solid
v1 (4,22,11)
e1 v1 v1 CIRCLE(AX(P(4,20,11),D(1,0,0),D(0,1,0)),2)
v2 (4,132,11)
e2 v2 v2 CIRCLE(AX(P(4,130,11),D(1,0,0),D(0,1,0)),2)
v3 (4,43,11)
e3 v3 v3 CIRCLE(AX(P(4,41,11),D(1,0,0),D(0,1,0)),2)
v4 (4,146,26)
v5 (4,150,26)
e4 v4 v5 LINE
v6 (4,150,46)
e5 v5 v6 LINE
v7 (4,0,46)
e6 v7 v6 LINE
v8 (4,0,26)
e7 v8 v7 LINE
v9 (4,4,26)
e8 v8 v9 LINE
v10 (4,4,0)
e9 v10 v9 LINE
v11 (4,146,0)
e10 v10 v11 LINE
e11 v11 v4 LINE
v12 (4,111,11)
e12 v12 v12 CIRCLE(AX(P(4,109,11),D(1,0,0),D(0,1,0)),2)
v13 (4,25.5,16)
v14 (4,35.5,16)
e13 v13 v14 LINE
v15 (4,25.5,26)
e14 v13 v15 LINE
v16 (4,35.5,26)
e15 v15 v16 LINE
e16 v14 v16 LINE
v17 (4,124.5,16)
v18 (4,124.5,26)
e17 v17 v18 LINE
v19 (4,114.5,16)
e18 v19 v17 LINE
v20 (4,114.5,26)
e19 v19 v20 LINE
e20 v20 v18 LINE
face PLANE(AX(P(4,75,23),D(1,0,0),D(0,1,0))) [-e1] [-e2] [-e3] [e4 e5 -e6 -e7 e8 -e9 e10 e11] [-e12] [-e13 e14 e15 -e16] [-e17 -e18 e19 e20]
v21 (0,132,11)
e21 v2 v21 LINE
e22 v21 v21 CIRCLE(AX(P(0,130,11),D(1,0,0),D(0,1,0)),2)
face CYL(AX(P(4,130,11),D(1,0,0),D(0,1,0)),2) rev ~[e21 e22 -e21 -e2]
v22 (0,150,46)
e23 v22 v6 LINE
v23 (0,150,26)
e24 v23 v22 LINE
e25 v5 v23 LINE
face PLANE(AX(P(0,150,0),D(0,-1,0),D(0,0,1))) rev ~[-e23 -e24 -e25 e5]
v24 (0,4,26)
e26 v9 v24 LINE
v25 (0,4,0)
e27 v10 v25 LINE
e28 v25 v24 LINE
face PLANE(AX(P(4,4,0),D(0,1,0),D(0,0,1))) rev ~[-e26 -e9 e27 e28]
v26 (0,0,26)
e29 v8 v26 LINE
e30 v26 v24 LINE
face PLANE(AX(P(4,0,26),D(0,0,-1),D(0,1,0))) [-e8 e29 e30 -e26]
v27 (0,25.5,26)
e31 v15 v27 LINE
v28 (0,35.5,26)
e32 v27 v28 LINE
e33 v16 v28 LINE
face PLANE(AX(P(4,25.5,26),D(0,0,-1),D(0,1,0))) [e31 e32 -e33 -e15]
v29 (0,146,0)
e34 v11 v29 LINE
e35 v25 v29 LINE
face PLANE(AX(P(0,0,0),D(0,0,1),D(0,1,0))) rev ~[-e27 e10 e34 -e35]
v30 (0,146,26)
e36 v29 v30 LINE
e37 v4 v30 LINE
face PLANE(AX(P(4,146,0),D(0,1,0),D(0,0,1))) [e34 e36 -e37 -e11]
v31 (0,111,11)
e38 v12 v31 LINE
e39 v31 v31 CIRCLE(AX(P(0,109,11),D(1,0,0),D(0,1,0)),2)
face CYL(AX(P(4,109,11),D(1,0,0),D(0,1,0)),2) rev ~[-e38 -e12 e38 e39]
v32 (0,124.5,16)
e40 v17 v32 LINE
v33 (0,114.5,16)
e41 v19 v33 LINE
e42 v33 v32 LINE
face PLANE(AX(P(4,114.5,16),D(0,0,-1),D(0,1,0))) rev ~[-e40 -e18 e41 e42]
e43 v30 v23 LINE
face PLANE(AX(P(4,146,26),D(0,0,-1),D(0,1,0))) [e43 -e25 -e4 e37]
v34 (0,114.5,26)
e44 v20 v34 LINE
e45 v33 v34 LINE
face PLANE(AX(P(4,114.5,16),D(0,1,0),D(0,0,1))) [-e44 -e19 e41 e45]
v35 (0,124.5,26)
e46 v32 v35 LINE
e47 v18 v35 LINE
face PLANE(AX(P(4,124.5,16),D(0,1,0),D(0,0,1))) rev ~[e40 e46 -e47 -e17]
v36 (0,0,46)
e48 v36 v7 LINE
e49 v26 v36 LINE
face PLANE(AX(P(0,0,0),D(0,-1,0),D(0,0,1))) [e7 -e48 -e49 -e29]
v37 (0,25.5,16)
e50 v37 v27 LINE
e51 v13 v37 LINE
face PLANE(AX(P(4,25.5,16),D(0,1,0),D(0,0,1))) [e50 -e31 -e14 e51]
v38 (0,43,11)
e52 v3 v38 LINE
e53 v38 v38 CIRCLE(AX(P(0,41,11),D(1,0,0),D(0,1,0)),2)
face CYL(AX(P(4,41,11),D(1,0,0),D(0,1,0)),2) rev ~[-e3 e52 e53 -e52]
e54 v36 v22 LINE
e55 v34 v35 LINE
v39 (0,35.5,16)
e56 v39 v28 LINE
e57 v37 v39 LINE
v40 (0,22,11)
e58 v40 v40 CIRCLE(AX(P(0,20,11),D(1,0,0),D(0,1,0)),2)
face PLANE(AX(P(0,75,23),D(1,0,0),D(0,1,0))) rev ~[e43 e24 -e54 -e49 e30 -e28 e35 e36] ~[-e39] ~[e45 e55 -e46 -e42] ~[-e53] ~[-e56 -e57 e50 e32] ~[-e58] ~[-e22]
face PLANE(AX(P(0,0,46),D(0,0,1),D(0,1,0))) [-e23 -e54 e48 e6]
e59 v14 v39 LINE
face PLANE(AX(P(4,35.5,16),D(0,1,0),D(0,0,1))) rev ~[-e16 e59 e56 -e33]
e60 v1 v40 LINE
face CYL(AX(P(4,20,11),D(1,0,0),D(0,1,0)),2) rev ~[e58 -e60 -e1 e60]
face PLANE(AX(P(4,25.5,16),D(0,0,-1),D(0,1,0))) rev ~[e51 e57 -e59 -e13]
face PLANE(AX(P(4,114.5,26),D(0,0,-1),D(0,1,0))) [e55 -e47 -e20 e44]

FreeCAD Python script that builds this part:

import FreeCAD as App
import Part
import Sketcher


def add_polygon(sketch, points):
    """Adds a closed chain of lines whose ends are joined by coincident constraints."""
    first, n = sketch.GeometryCount, len(points)
    for a, b in zip(points, points[1:] + points[:1]):
        sketch.addGeometry(Part.LineSegment(App.Vector(*a, 0), App.Vector(*b, 0)), False)
    for i in range(n):
        sketch.addConstraint(Sketcher.Constraint("Coincident", first + i, 2, first + (i + 1) % n, 1))

doc = App.newDocument("Part")
body = doc.addObject("PartDesign::Body", "Body")

sketch1 = body.newObject("Sketcher::SketchObject", "Sketch")
sketch1.AttachmentSupport = (doc.getObject("YZ_Plane"), [""])
sketch1.MapMode = "FlatFace"
add_polygon(sketch1, [(0, 46), (0, 0), (150, 0), (150, 46)])
sketch1.addConstraint([
    Sketcher.Constraint("Vertical", 0),
    Sketcher.Constraint("Horizontal", 1),
    Sketcher.Constraint("Vertical", 2),
    Sketcher.Constraint("Horizontal", 3),
    Sketcher.Constraint("Coincident", 0, 2, -1, 1),
    Sketcher.Constraint("DistanceX", 1, 1, 1, 2, 150.0),
    Sketcher.Constraint("DistanceY", 0, 2, 0, 1, 46.0),
])
pad1 = body.newObject("PartDesign::Pad", "Pad")
pad1.Profile = sketch1
pad1.Length = 4

sketch2 = body.newObject("Sketcher::SketchObject", "Sketch001")
sketch2.AttachmentSupport = (doc.getObject("YZ_Plane"), [""])
sketch2.MapMode = "FlatFace"
sketch2.AttachmentOffset = App.Placement(App.Vector(0, 0, 4), App.Rotation())
add_polygon(sketch2, [(0, 26), (0, 0), (4, 0), (4, 26)])
add_polygon(sketch2, [(146, 26), (146, 0), (150, 0), (150, 26)])
sketch2.addConstraint([
    Sketcher.Constraint("Vertical", 0),
    Sketcher.Constraint("Horizontal", 1),
    Sketcher.Constraint("Vertical", 2),
    Sketcher.Constraint("Horizontal", 3),
    Sketcher.Constraint("Vertical", 4),
    Sketcher.Constraint("Horizontal", 5),
    Sketcher.Constraint("Vertical", 6),
    Sketcher.Constraint("Horizontal", 7),
    Sketcher.Constraint("Coincident", 0, 2, -1, 1),
    Sketcher.Constraint("PointOnObject", 4, 2, -1),
    Sketcher.Constraint("Horizontal", 3, 2, 6, 2),
    Sketcher.Constraint("Equal", 3, 5),
    Sketcher.Constraint("DistanceX", 1, 1, 1, 2, 4.0),
    Sketcher.Constraint("DistanceY", 0, 2, 0, 1, 26.0),
    Sketcher.Constraint("DistanceX", -1, 1, 4, 2, 146.0),
])
pocket1 = body.newObject("PartDesign::Pocket", "Pocket")
pocket1.Profile = sketch2
pocket1.Length = 5

sketch3 = body.newObject("Sketcher::SketchObject", "Sketch002")
sketch3.AttachmentSupport = (doc.getObject("YZ_Plane"), [""])
sketch3.MapMode = "FlatFace"
sketch3.AttachmentOffset = App.Placement(App.Vector(0, 0, 4), App.Rotation())
sketch3.addGeometry(Part.Circle(App.Vector(20, 11, 0), App.Vector(0, 0, 1), 2), False)
sketch3.addGeometry(Part.Circle(App.Vector(41, 11, 0), App.Vector(0, 0, 1), 2), False)
sketch3.addGeometry(Part.Circle(App.Vector(109, 11, 0), App.Vector(0, 0, 1), 2), False)
sketch3.addGeometry(Part.Circle(App.Vector(130, 11, 0), App.Vector(0, 0, 1), 2), False)
add_polygon(sketch3, [(25.5, 26), (25.5, 16), (35.5, 16), (35.5, 26)])
add_polygon(sketch3, [(114.5, 26), (114.5, 16), (124.5, 16), (124.5, 26)])
sketch3.addConstraint([
    Sketcher.Constraint("Vertical", 4),
    Sketcher.Constraint("Horizontal", 5),
    Sketcher.Constraint("Vertical", 6),
    Sketcher.Constraint("Horizontal", 7),
    Sketcher.Constraint("Vertical", 8),
    Sketcher.Constraint("Horizontal", 9),
    Sketcher.Constraint("Vertical", 10),
    Sketcher.Constraint("Horizontal", 11),
    Sketcher.Constraint("Equal", 0, 1),
    Sketcher.Constraint("Equal", 1, 2),
    Sketcher.Constraint("Equal", 2, 3),
    Sketcher.Constraint("Horizontal", 0, 3, 1, 3),
    Sketcher.Constraint("Horizontal", 1, 3, 2, 3),
    Sketcher.Constraint("Horizontal", 2, 3, 3, 3),
    Sketcher.Constraint("Horizontal", 5, 2, 8, 2),
    Sketcher.Constraint("Horizontal", 7, 2, 10, 2),
    Sketcher.Constraint("Equal", 7, 9),
    Sketcher.Constraint("Equal", 11, 4),
    Sketcher.Constraint("Diameter", 0, 4.0),
    Sketcher.Constraint("DistanceX", 5, 1, 5, 2, 10.0),
    Sketcher.Constraint("DistanceX", -1, 1, 0, 3, 20.0),
    Sketcher.Constraint("DistanceY", -1, 1, 0, 3, 11.0),
    Sketcher.Constraint("DistanceX", -1, 1, 1, 3, 41.0),
    Sketcher.Constraint("DistanceX", -1, 1, 2, 3, 109.0),
    Sketcher.Constraint("DistanceX", -1, 1, 3, 3, 130.0),
    Sketcher.Constraint("DistanceY", -1, 1, 4, 2, 16.0),
    Sketcher.Constraint("DistanceX", 5, 2, 8, 2, 79.0),
    Sketcher.Constraint("DistanceX", -1, 1, 4, 2, 25.5),
])
pocket2 = body.newObject("PartDesign::Pocket", "Pocket001")
pocket2.Profile = sketch3
pocket2.Length = 5

doc.recompute()
